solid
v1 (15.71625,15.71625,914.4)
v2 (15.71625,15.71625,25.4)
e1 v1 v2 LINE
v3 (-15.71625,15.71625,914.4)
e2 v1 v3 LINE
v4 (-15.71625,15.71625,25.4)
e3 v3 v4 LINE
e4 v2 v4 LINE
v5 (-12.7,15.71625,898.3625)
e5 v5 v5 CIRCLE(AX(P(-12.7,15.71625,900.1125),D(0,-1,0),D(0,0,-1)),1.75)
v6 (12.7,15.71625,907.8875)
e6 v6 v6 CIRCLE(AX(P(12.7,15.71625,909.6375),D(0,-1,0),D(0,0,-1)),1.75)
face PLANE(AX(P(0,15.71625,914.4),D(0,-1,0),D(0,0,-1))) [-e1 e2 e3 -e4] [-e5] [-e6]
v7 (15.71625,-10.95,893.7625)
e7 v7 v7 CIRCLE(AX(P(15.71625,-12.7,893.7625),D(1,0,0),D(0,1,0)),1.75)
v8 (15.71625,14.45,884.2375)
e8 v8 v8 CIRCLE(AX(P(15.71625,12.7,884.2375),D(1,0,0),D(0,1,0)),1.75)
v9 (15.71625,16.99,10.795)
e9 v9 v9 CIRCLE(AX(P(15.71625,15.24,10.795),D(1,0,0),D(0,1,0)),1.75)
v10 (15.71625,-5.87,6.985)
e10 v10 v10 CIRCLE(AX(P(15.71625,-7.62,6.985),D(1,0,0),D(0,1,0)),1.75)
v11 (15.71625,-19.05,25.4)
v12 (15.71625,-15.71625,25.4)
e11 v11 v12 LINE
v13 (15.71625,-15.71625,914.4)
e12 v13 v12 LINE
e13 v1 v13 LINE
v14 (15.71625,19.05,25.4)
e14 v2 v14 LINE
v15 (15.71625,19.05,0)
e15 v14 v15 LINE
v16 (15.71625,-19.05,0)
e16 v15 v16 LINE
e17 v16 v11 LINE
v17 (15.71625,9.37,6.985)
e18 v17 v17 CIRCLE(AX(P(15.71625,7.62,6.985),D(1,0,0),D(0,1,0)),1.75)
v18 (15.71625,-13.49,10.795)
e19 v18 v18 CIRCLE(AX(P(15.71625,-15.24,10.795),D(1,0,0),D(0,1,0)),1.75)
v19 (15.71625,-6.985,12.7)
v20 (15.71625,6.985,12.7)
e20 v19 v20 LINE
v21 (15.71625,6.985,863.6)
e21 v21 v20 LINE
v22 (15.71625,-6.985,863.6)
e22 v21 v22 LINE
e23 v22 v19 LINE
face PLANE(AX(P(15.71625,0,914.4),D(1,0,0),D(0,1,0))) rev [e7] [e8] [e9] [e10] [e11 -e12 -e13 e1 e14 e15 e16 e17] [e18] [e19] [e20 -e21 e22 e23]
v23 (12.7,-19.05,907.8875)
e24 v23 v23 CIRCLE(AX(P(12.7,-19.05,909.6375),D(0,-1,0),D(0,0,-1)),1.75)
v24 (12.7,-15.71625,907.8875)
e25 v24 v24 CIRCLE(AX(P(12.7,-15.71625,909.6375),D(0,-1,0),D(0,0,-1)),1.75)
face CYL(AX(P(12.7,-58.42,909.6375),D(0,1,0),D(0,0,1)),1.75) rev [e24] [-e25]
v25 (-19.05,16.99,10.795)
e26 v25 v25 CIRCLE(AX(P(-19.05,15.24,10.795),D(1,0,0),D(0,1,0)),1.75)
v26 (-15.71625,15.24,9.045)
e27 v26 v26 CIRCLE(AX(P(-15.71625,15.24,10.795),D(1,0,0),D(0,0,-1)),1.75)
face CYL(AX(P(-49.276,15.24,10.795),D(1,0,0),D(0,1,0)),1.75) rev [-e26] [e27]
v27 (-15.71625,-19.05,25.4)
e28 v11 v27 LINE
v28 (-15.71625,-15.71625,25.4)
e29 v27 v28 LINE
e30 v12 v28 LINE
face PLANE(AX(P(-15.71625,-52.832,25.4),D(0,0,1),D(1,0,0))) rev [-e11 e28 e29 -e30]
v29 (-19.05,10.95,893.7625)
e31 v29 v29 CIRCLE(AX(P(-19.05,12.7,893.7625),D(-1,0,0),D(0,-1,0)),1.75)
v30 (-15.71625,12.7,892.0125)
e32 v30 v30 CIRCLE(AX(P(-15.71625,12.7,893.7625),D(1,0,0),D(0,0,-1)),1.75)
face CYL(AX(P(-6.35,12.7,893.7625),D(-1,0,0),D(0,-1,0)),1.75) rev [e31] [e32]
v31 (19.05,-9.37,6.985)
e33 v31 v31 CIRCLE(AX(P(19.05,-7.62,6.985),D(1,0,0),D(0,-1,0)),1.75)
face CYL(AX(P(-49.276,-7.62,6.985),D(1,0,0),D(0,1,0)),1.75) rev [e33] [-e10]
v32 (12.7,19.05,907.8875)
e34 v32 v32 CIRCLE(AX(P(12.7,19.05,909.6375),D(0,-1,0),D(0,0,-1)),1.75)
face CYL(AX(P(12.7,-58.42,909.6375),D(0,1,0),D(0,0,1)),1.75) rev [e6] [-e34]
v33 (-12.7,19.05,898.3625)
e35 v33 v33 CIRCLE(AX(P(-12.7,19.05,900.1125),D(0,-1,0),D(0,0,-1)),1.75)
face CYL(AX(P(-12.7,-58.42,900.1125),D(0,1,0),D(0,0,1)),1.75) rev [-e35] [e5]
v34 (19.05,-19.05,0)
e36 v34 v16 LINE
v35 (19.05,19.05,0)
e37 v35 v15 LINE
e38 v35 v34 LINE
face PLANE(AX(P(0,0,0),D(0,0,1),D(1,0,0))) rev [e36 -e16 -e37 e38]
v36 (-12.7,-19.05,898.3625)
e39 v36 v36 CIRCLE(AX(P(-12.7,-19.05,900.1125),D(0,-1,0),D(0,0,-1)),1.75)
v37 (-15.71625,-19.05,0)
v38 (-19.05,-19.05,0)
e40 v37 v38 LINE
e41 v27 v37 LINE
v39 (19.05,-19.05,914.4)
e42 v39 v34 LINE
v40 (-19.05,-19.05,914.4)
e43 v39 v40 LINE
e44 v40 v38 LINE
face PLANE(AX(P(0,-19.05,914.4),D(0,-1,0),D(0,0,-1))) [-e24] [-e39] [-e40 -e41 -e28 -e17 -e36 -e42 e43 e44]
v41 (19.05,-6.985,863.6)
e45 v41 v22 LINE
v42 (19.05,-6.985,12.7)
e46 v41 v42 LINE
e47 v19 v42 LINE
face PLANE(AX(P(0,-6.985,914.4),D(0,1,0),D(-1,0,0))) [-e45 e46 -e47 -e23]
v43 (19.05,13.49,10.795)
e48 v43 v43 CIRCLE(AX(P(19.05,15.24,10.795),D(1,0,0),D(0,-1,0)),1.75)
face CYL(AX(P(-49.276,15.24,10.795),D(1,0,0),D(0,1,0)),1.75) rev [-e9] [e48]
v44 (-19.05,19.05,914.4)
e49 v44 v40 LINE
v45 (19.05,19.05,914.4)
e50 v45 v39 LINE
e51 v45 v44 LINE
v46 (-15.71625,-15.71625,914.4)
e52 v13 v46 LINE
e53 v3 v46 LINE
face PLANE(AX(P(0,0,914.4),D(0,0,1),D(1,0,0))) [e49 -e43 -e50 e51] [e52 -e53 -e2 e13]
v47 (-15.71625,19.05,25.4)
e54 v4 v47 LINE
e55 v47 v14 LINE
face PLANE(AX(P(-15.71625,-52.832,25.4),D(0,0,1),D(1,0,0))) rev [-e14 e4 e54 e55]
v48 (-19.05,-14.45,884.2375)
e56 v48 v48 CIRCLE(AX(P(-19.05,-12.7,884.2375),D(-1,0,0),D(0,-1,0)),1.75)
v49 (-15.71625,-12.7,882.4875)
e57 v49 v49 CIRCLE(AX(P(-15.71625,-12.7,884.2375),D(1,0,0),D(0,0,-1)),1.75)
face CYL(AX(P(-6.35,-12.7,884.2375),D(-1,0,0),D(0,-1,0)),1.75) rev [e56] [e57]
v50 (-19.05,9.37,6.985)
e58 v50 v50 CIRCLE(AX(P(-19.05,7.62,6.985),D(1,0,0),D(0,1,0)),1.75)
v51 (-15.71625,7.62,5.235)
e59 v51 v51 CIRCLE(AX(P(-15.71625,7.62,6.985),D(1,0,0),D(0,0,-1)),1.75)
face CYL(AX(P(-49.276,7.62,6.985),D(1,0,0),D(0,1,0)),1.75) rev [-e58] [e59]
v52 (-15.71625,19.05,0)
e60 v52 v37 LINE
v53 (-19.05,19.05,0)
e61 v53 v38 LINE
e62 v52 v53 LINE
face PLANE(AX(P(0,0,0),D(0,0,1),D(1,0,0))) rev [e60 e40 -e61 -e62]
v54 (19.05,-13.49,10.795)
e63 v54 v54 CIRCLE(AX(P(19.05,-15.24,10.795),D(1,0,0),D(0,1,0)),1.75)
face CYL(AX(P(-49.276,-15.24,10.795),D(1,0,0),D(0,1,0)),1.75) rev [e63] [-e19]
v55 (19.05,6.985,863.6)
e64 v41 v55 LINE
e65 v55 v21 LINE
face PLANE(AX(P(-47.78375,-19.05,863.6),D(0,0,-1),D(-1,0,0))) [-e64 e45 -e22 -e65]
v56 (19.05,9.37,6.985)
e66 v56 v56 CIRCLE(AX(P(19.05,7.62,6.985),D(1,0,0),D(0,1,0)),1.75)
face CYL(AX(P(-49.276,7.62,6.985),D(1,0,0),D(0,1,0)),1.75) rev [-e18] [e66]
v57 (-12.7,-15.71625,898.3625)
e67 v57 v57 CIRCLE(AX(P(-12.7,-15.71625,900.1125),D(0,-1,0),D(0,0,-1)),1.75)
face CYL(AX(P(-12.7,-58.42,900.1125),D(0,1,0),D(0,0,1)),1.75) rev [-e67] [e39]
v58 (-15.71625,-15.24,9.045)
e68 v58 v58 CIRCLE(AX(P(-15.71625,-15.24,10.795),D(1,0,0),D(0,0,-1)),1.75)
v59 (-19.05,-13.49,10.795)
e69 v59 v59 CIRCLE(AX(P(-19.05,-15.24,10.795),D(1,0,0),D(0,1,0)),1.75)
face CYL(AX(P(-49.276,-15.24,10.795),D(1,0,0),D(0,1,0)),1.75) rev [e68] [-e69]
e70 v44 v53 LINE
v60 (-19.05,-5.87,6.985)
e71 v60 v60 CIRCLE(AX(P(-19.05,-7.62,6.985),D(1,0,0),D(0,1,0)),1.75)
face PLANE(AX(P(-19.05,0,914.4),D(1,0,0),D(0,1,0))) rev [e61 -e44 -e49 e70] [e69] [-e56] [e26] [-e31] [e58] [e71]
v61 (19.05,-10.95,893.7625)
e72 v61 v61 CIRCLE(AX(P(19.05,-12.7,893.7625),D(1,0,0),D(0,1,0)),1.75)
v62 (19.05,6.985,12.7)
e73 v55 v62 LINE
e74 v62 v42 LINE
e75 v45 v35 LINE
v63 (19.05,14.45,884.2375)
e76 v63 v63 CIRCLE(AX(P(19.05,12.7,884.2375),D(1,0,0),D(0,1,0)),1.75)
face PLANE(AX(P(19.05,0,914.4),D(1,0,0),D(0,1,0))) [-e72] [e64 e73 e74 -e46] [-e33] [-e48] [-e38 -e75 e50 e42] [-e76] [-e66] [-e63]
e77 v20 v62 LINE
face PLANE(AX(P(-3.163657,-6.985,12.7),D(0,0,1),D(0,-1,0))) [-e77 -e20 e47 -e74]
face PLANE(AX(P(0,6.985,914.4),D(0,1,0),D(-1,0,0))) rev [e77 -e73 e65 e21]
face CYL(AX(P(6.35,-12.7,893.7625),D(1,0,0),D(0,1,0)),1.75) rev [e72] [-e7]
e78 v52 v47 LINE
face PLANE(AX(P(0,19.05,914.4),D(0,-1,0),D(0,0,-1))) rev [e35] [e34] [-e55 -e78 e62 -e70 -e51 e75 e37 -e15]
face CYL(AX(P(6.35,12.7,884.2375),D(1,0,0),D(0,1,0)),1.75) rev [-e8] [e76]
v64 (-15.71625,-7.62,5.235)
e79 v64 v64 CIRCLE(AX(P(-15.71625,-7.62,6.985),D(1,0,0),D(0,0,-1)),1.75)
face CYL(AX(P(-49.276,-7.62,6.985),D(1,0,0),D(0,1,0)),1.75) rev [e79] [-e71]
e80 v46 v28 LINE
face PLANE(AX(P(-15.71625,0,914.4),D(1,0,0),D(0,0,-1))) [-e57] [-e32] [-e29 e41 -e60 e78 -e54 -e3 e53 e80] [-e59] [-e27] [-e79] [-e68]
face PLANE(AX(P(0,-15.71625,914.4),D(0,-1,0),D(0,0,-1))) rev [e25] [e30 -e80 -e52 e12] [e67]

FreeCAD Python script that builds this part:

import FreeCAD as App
import Part
import Sketcher
from FreeCAD import Vector
Q = App.Units.Quantity


def add_polygon(sketch, points):
    """Adds a closed chain of lines whose ends are joined by coincident constraints."""
    first, n = sketch.GeometryCount, len(points)
    for a, b in zip(points, points[1:] + points[:1]):
        sketch.addGeometry(Part.LineSegment(App.Vector(*a, 0), App.Vector(*b, 0)), False)
    for i in range(n):
        sketch.addConstraint(Sketcher.Constraint("Coincident", first + i, 2, first + (i + 1) % n, 1))

doc = App.newDocument("Part")
body = doc.addObject("PartDesign::Body", "Body")

# Sketch on XY plane
sketch1 = body.newObject("Sketcher::SketchObject", "Sketch")
sketch1.AttachmentSupport = (doc.getObject("XY_Plane"), [""])
sketch1.MapMode = "FlatFace"
add_polygon(sketch1, [(19.05, 6.985), (19.05, 19.05), (-19.05, 19.05), (-19.05, -19.05), (19.05, -19.05), (19.05, -6.985), (15.71625, -6.985), (15.71625, -15.71625), (-15.71625, -15.71625), (-15.71625, 15.71625), (15.71625, 15.71625), (15.71625, 6.985)])  # lines 0-11
sketch1.addConstraint(Sketcher.Constraint("Vertical", 0))
sketch1.addConstraint(Sketcher.Constraint("Horizontal", 1))
sketch1.addConstraint(Sketcher.Constraint("Vertical", 2))
sketch1.addConstraint(Sketcher.Constraint("Horizontal", 3))
sketch1.addConstraint(Sketcher.Constraint("Vertical", 4))
sketch1.addConstraint(Sketcher.Constraint("Horizontal", 5))
sketch1.addConstraint(Sketcher.Constraint("Vertical", 6))
sketch1.addConstraint(Sketcher.Constraint("Horizontal", 7))
sketch1.addConstraint(Sketcher.Constraint("Vertical", 8))
sketch1.addConstraint(Sketcher.Constraint("Horizontal", 9))
sketch1.addConstraint(Sketcher.Constraint("Vertical", 10))
sketch1.addConstraint(Sketcher.Constraint("Horizontal", 11))
sketch1.addConstraint(Sketcher.Constraint("Symmetric", 0, 2, 2, 2, -1, 1))
sketch1.addConstraint(Sketcher.Constraint("Symmetric", 6, 2, 8, 2, -1, 1))
sketch1.addConstraint(Sketcher.Constraint("Symmetric", 5, 2, 10, 2, -1))
sketch1.addConstraint(Sketcher.Constraint("Vertical", 0, 2, 3, 2))
sketch1.addConstraint(Sketcher.Constraint("Equal", 3, 2))
sketch1.addConstraint(Sketcher.Constraint("Equal", 9, 8))
sketch1.addConstraint(Sketcher.Constraint("DistanceX", 1, 2, 1, 1, Q("1.5 in")))
sketch1.addConstraint(Sketcher.Constraint("DistanceY", 0, 1, 0, 2, Q("0.475 in")))
sketch1.addConstraint(Sketcher.Constraint("DistanceY", 6, 2, 6, 1, Q("0.34375 in")))
pad1 = body.newObject("PartDesign::Pad", "Pad")
pad1.Profile = sketch1
pad1.Length = Q("36 in")

# Sketch on XZ plane
sketch2 = body.newObject("Sketcher::SketchObject", "Sketch001")
sketch2.AttachmentSupport = (doc.getObject("XZ_Plane"), [""])
sketch2.MapMode = "FlatFace"
sketch2.addGeometry(Part.Circle(Vector(12.7, 909.6375, 0), Vector(0, 0, 1), 1.75), False)
sketch2.addGeometry(Part.Circle(Vector(-12.7, 900.1125, 0), Vector(0, 0, 1), 1.75), False)
sketch2.addConstraint(Sketcher.Constraint("Equal", 0, 1))
sketch2.addConstraint(Sketcher.Constraint("DistanceX", 1, 3, 0, 3, Q("1 in")))
sketch2.addConstraint(Sketcher.Constraint("DistanceX", -1, 1, 0, 3, Q("0.5 in")))
sketch2.addConstraint(Sketcher.Constraint("Diameter", 0, Q("3.5 mm")))
sketch2.addConstraint(Sketcher.Constraint("DistanceY", -1, 1, 0, 3, Q("35.8125 in")))
sketch2.addConstraint(Sketcher.Constraint("DistanceY", -1, 1, 1, 3, Q("35.4375 in")))
pocket1 = body.newObject("PartDesign::Pocket", "Pocket")
pocket1.Profile = sketch2
pocket1.Type = "ThroughAll"
pocket1.Midplane = True

# Sketch on XZ plane
sketch3 = body.newObject("Sketcher::SketchObject", "Sketch002")
sketch3.AttachmentSupport = (doc.getObject("XZ_Plane"), [""])
sketch3.MapMode = "FlatFace"
sketch3.AttachmentOffset = App.Placement(Vector(0, 0, -0.75 * 25.4), App.Rotation())
add_polygon(sketch3, [(15.71625, 25.4), (15.71625, -25.4), (-15.71625, -25.4), (-15.71625, 25.4)])  # lines 0-3
sketch3.addConstraint(Sketcher.Constraint("Vertical", 0))
sketch3.addConstraint(Sketcher.Constraint("Horizontal", 1))
sketch3.addConstraint(Sketcher.Constraint("Vertical", 2))
sketch3.addConstraint(Sketcher.Constraint("Horizontal", 3))
sketch3.addConstraint(Sketcher.Constraint("Symmetric", 0, 2, 2, 2, -1, 1))
sketch3.addConstraint(Sketcher.Constraint("DistanceY", 0, 2, 0, 1, Q("2 in")))
sketch3.addConstraint(Sketcher.Constraint("DistanceX", 1, 2, 1, 1, Q("1.2375 in")))
pocket2 = body.newObject("PartDesign::Pocket", "Pocket001")
pocket2.Profile = sketch3
pocket2.Length = Q("2.83 in")
pocket2.Reversed = True

# Sketch on YZ plane
sketch4 = body.newObject("Sketcher::SketchObject", "Sketch003")
sketch4.AttachmentSupport = (doc.getObject("YZ_Plane"), [""])
sketch4.MapMode = "FlatFace"
sketch4.AttachmentOffset = App.Placement(Vector(0, 0, 0.75 * 25.4), App.Rotation())
sketch4.addGeometry(Part.Circle(Vector(-12.7, 893.7625, 0), Vector(0, 0, 1), 1.75), False)
sketch4.addGeometry(Part.Circle(Vector(12.7, 884.2375, 0), Vector(0, 0, 1), 1.75), False)
sketch4.addConstraint(Sketcher.Constraint("Equal", 0, 1))
sketch4.addConstraint(Sketcher.Constraint("DistanceX", 0, 3, 1, 3, Q("1 in")))
sketch4.addConstraint(Sketcher.Constraint("DistanceX", 0, 3, -1, 1, Q("0.5 in")))
sketch4.addConstraint(Sketcher.Constraint("Diameter", 0, Q("3.5 mm")))
sketch4.addConstraint(Sketcher.Constraint("DistanceY", -1, 1, 0, 3, Q("35.1875 in")))
sketch4.addConstraint(Sketcher.Constraint("DistanceY", -1, 1, 1, 3, Q("34.8125 in")))
pocket3 = body.newObject("PartDesign::Pocket", "Pocket002")
pocket3.Profile = sketch4
pocket3.Length = Q("0.5 in")

# Sketch on YZ plane
sketch5 = body.newObject("Sketcher::SketchObject", "Sketch004")
sketch5.AttachmentSupport = (doc.getObject("YZ_Plane"), [""])
sketch5.MapMode = "FlatFace"
sketch5.AttachmentOffset = App.Placement(Vector(0, 0, 0.75 * 25.4), App.Rotation())
add_polygon(sketch5, [(-6.985, 12.7), (-6.985, 0), (6.985, 0), (6.985, 12.7)])  # lines 0-3
sketch5.addConstraint(Sketcher.Constraint("Vertical", 0))
sketch5.addConstraint(Sketcher.Constraint("Horizontal", 1))
sketch5.addConstraint(Sketcher.Constraint("Vertical", 2))
sketch5.addConstraint(Sketcher.Constraint("Horizontal", 3))
sketch5.addConstraint(Sketcher.Constraint("Symmetric", 0, 2, 1, 2, -1, 1))
sketch5.addConstraint(Sketcher.Constraint("DistanceY", 0, 2, 0, 1, Q("0.5 in")))
sketch5.addConstraint(Sketcher.Constraint("DistanceX", 1, 1, 1, 2, Q("0.55 in")))
pad2 = body.newObject("PartDesign::Pad", "Pad001")
pad2.Profile = sketch5
pad2.Length = 3.33375
pad2.Reversed = True

# Sketch on YZ plane
sketch6 = body.newObject("Sketcher::SketchObject", "Sketch005")
sketch6.AttachmentSupport = (doc.getObject("YZ_Plane"), [""])
sketch6.MapMode = "FlatFace"
sketch6.AttachmentOffset = App.Placement(Vector(0, 0, 0.75 * 25.4), App.Rotation())
sketch6.addGeometry(Part.Circle(Vector(-15.24, 10.795, 0), Vector(0, 0, 1), 1.75), False)
sketch6.addGeometry(Part.Circle(Vector(15.24, 10.795, 0), Vector(0, 0, 1), 1.75), False)
sketch6.addGeometry(Part.Circle(Vector(7.62, 6.985, 0), Vector(0, 0, 1), 1.75), False)
sketch6.addGeometry(Part.Circle(Vector(-7.62, 6.985, 0), Vector(0, 0, 1), 1.75), False)
sketch6.addConstraint(Sketcher.Constraint("Equal", 0, 1))
sketch6.addConstraint(Sketcher.Constraint("Equal", 1, 2))
sketch6.addConstraint(Sketcher.Constraint("Equal", 2, 3))
sketch6.addConstraint(Sketcher.Constraint("Symmetric", 0, 3, 1, 3, -2))
sketch6.addConstraint(Sketcher.Constraint("Symmetric", 2, 3, 3, 3, -2))
sketch6.addConstraint(Sketcher.Constraint("DistanceX", 0, 3, -1, 1, Q("0.6 in")))
sketch6.addConstraint(Sketcher.Constraint("DistanceX", -1, 1, 2, 3, Q("0.3 in")))
sketch6.addConstraint(Sketcher.Constraint("Diameter", 0, Q("3.5 mm")))
sketch6.addConstraint(Sketcher.Constraint("DistanceY", 2, 3, 1, 3, Q("0.15 in")))
sketch6.addConstraint(Sketcher.Constraint("DistanceY", -1, 1, 0, 3, Q("0.425 in")))
pocket4 = body.newObject("PartDesign::Pocket", "Pocket003")
pocket4.Profile = sketch6
pocket4.Length = Q("2.69 in")
doc.recompute()

polarpattern = body.newObject("PartDesign::PolarPattern", "PolarPattern")
polarpattern.Originals = [pocket3]
polarpattern.Axis = (doc.getObject("Z_Axis"), [""])
polarpattern.Angle = 360
polarpattern.Occurrences = 2
body.Tip = polarpattern

# Sketch on YZ plane
sketch7 = body.newObject("Sketcher::SketchObject", "Sketch006")
sketch7.AttachmentSupport = (doc.getObject("YZ_Plane"), [""])
sketch7.MapMode = "FlatFace"
sketch7.AttachmentOffset = App.Placement(Vector(0, 0, 0.75 * 25.4), App.Rotation())
add_polygon(sketch7, [(-19.05, 914.4), (-19.05, 863.6), (19.05, 863.6), (19.05, 914.4)])  # lines 0-3
sketch7.addGeometry(Part.Circle(Vector(12.7, 884.2375, 0), Vector(0, 0, 1), 1.75), False)  # 4
sketch7.addGeometry(Part.Circle(Vector(-12.7, 893.7625, 0), Vector(0, 0, 1), 1.75), False)  # 5
sketch7.addConstraint(Sketcher.Constraint("Vertical", 0))
sketch7.addConstraint(Sketcher.Constraint("Horizontal", 1))
sketch7.addConstraint(Sketcher.Constraint("Vertical", 2))
sketch7.addConstraint(Sketcher.Constraint("Horizontal", 3))
sketch7.addConstraint(Sketcher.Constraint("Equal", 4, 5))
sketch7.addConstraint(Sketcher.Constraint("DistanceY", 0, 2, 0, 1, Q("2 in")))
sketch7.addConstraint(Sketcher.Constraint("DistanceX", 1, 1, 1, 2, Q("1.5 in")))
sketch7.addConstraint(Sketcher.Constraint("DistanceY", -1, 1, 0, 2, Q("34 in")))
sketch7.addConstraint(Sketcher.Constraint("DistanceX", 5, 3, 4, 3, Q("1 in")))
sketch7.addConstraint(Sketcher.Constraint("DistanceX", -1, 1, 4, 3, Q("0.5 in")))
sketch7.addConstraint(Sketcher.Constraint("Diameter", 4, Q("3.5 mm")))
sketch7.addConstraint(Sketcher.Constraint("DistanceX", 0, 2, -1, 1, Q("0.75 in")))
sketch7.addConstraint(Sketcher.Constraint("DistanceY", -1, 1, 4, 3, Q("34.8125 in")))
sketch7.addConstraint(Sketcher.Constraint("DistanceY", -1, 1, 5, 3, Q("35.1875 in")))
pad3 = body.newObject("PartDesign::Pad", "Pad002")
pad3.Profile = sketch7
pad3.Length = 3.33375
pad3.Reversed = True

doc.recompute()
